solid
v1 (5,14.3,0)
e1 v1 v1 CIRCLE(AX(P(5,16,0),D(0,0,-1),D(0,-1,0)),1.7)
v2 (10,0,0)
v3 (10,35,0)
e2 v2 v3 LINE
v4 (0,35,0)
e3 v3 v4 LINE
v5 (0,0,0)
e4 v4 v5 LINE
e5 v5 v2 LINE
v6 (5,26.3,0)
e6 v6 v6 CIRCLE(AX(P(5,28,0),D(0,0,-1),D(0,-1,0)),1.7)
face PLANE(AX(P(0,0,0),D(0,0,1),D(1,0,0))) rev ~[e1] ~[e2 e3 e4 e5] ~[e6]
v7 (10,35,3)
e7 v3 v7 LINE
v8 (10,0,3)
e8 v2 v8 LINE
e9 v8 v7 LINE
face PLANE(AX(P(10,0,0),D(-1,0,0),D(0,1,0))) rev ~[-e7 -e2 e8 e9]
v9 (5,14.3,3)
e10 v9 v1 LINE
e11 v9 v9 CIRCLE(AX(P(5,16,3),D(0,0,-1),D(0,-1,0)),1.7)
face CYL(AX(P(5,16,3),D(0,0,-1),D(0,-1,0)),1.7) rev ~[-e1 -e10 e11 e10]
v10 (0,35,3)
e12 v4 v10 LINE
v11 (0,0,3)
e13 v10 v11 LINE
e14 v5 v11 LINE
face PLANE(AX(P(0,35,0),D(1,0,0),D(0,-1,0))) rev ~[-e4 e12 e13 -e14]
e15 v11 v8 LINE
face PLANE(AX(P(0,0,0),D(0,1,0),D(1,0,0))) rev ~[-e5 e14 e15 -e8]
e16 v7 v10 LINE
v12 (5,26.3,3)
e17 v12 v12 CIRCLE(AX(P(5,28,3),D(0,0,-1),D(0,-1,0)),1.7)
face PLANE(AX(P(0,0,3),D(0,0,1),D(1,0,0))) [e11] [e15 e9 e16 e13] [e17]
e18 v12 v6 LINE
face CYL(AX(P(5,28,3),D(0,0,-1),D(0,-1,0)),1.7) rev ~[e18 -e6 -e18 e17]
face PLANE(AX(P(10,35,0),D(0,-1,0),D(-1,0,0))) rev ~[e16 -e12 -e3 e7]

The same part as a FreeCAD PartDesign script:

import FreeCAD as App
import Part
import Sketcher

V = App.Vector

doc = App.newDocument("Part")
body = doc.addObject("PartDesign::Body", "Body")

sketch1 = doc.addObject("Sketcher::SketchObject", "Sketch")
body.addObject(sketch1)
sketch1.AttachmentSupport = (doc.XY_Plane, [""])
sketch1.MapMode = "FlatFace"
sketch1.addGeometry([
    Part.LineSegment(V(0, 35, 0), V(0, 0, 0)),
    Part.LineSegment(V(0, 0, 0), V(10, 0, 0)),
    Part.LineSegment(V(10, 0, 0), V(10, 35, 0)),
    Part.LineSegment(V(10, 35, 0), V(0, 35, 0)),
], False)
sketch1.addConstraint([
    Sketcher.Constraint("Coincident", 0, 2, 1, 1),
    Sketcher.Constraint("Coincident", 1, 2, 2, 1),
    Sketcher.Constraint("Coincident", 2, 2, 3, 1),
    Sketcher.Constraint("Coincident", 3, 2, 0, 1),
    Sketcher.Constraint("Vertical", 0),
    Sketcher.Constraint("Horizontal", 1),
    Sketcher.Constraint("Vertical", 2),
    Sketcher.Constraint("Horizontal", 3),
    Sketcher.Constraint("Coincident", 0, 2, -1, 1),
    Sketcher.Constraint("DistanceX", 1, 1, 1, 2, 10.0),
    Sketcher.Constraint("DistanceY", 0, 2, 0, 1, 35.0),
])
pad1 = doc.addObject("PartDesign::Pad", "Pad")
body.addObject(pad1)
pad1.Profile = sketch1
pad1.Length = 3

sketch2 = doc.addObject("Sketcher::SketchObject", "Sketch001")
body.addObject(sketch2)
sketch2.AttachmentSupport = (doc.XY_Plane, [""])
sketch2.MapMode = "FlatFace"
sketch2.AttachmentOffset = App.Placement(V(0, 0, 3), App.Rotation())
sketch2.addGeometry([
    Part.Circle(V(5, 28, 0), V(0, 0, 1), 1.7),
    Part.Circle(V(5, 16, 0), V(0, 0, 1), 1.7),
], False)
sketch2.addConstraint([
    Sketcher.Constraint("Equal", 0, 1),
    Sketcher.Constraint("Vertical", 0, 3, 1, 3),
    Sketcher.Constraint("Diameter", 0, 3.4),
    Sketcher.Constraint("DistanceX", -1, 1, 0, 3, 5.0),
    Sketcher.Constraint("DistanceY", -1, 1, 0, 3, 28.0),
    Sketcher.Constraint("DistanceY", -1, 1, 1, 3, 16.0),
])
doc.recompute()
hole = doc.addObject("PartDesign::Hole", "Hole")
body.addObject(hole)
hole.Profile = sketch2
hole.ThreadType = "None"
hole.Diameter = 3.4
hole.DepthType = "ThroughAll"

doc.recompute()
